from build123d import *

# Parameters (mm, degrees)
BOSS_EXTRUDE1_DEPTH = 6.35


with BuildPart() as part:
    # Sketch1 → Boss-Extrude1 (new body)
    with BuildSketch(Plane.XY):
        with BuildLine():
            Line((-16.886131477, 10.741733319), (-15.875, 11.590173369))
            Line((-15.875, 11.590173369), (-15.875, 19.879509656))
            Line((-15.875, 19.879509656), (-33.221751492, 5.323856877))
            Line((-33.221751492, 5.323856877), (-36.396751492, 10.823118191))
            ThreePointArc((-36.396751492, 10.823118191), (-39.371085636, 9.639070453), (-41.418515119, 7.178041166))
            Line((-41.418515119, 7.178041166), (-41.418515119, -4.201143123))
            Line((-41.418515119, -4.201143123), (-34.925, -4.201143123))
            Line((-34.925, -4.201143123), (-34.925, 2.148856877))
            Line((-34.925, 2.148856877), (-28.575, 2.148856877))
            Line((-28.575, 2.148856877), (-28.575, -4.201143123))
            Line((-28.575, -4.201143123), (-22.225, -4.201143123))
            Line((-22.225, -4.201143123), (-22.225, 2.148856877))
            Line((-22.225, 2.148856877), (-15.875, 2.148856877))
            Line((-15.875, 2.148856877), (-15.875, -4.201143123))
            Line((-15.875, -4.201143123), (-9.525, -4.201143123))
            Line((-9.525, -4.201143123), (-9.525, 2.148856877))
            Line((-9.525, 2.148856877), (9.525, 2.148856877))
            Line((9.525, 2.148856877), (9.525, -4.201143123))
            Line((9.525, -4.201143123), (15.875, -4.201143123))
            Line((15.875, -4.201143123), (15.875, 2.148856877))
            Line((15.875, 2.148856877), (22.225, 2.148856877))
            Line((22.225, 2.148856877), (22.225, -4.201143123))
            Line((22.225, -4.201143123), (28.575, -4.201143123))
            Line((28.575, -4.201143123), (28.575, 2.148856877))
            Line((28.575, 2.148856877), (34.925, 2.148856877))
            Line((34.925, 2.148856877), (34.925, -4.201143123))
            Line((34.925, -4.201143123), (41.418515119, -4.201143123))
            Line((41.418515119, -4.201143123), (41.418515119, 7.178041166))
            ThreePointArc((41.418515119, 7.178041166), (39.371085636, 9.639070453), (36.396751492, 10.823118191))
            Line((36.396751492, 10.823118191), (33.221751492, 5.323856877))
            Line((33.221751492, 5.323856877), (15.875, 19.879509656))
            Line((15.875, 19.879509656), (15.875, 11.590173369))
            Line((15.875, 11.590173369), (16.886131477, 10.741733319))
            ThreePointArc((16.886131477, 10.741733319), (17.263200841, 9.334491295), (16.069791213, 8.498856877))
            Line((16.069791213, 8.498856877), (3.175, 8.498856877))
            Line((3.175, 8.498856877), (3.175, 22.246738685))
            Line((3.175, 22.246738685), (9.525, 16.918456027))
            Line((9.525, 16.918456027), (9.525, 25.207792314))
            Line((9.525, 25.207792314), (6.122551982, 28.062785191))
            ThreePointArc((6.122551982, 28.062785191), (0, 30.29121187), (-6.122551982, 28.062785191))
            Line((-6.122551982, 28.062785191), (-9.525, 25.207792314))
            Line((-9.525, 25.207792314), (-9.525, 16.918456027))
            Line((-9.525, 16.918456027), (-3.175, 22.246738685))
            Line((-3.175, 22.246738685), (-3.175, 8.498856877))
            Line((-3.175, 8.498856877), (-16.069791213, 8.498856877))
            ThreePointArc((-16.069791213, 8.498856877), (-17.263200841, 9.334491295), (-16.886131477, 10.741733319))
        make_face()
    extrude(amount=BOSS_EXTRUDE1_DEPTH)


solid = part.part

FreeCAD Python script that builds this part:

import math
import FreeCAD as App
import Part
import Sketcher
Q = App.Units.Quantity

doc = App.newDocument("Part")
params = doc.addObject("Spreadsheet::Sheet", "Params")
for row, (alias, value) in enumerate([
    ("sketch1_radius", "0.05 in"),
    ("sketch1_radius2", "0.375 in"),
    ("sketch1_width", "0.25 in"),
    ("sketch1_length", "0.25 in"),
    ("pad1_length", "0.25 in"),
], start=1):
    params.set(f"A{row}", alias)
    params.set(f"B{row}", "=" + value)
    params.setAlias(f"B{row}", alias)

body = doc.addObject("PartDesign::Body", "Body")

# Sketch on XY plane
sketch1 = doc.addObject("Sketcher::SketchObject", "Sketch")
body.addObject(sketch1)
sketch1.AttachmentSupport = (doc.XY_Plane, [""])
sketch1.MapMode = "FlatFace"
sketch1.addGeometry(Part.LineSegment(App.Vector(-16.886131, 10.741733, 0), App.Vector(-15.875, 11.590173, 0)), False)
sketch1.addGeometry(Part.LineSegment(App.Vector(-15.875, 11.590173, 0), App.Vector(-15.875, 19.87951, 0)), False)
sketch1.addGeometry(Part.LineSegment(App.Vector(-15.875, 19.87951, 0), App.Vector(-33.221751, 5.323857, 0)), False)
sketch1.addGeometry(Part.LineSegment(App.Vector(-33.221751, 5.323857, 0), App.Vector(-36.396751, 10.823118, 0)), False)
sketch1.addGeometry(Part.ArcOfCircle(Part.Circle(App.Vector(-35.555769, 4.382771, 0), App.Vector(0, 0, 1), 6.495023), math.radians(97.439605), math.radians(154.508884)), False)
sketch1.addGeometry(Part.LineSegment(App.Vector(-41.418515, 7.178041, 0), App.Vector(-41.418515, -4.201143, 0)), False)
sketch1.addGeometry(Part.LineSegment(App.Vector(-41.418515, -4.201143, 0), App.Vector(-34.925, -4.201143, 0)), False)
sketch1.addGeometry(Part.LineSegment(App.Vector(-34.925, -4.201143, 0), App.Vector(-34.925, 2.148857, 0)), False)
sketch1.addGeometry(Part.LineSegment(App.Vector(-34.925, 2.148857, 0), App.Vector(-28.575, 2.148857, 0)), False)
sketch1.addGeometry(Part.LineSegment(App.Vector(-28.575, 2.148857, 0), App.Vector(-28.575, -4.201143, 0)), False)
sketch1.addGeometry(Part.LineSegment(App.Vector(-28.575, -4.201143, 0), App.Vector(-22.225, -4.201143, 0)), False)
sketch1.addGeometry(Part.LineSegment(App.Vector(-22.225, -4.201143, 0), App.Vector(-22.225, 2.148857, 0)), False)
sketch1.addGeometry(Part.LineSegment(App.Vector(-22.225, 2.148857, 0), App.Vector(-15.875, 2.148857, 0)), False)
sketch1.addGeometry(Part.LineSegment(App.Vector(-15.875, 2.148857, 0), App.Vector(-15.875, -4.201143, 0)), False)
sketch1.addGeometry(Part.LineSegment(App.Vector(-15.875, -4.201143, 0), App.Vector(-9.525, -4.201143, 0)), False)
sketch1.addGeometry(Part.LineSegment(App.Vector(-9.525, -4.201143, 0), App.Vector(-9.525, 2.148857, 0)), False)
sketch1.addGeometry(Part.LineSegment(App.Vector(-9.525, 2.148857, 0), App.Vector(9.525, 2.148857, 0)), False)
sketch1.addGeometry(Part.LineSegment(App.Vector(9.525, 2.148857, 0), App.Vector(9.525, -4.201143, 0)), False)
sketch1.addGeometry(Part.LineSegment(App.Vector(9.525, -4.201143, 0), App.Vector(15.875, -4.201143, 0)), False)
sketch1.addGeometry(Part.LineSegment(App.Vector(15.875, -4.201143, 0), App.Vector(15.875, 2.148857, 0)), False)
sketch1.addGeometry(Part.LineSegment(App.Vector(15.875, 2.148857, 0), App.Vector(22.225, 2.148857, 0)), False)
sketch1.addGeometry(Part.LineSegment(App.Vector(22.225, 2.148857, 0), App.Vector(22.225, -4.201143, 0)), False)
sketch1.addGeometry(Part.LineSegment(App.Vector(22.225, -4.201143, 0), App.Vector(28.575, -4.201143, 0)), False)
sketch1.addGeometry(Part.LineSegment(App.Vector(28.575, -4.201143, 0), App.Vector(28.575, 2.148857, 0)), False)
sketch1.addGeometry(Part.LineSegment(App.Vector(28.575, 2.148857, 0), App.Vector(34.925, 2.148857, 0)), False)
sketch1.addGeometry(Part.LineSegment(App.Vector(34.925, 2.148857, 0), App.Vector(34.925, -4.201143, 0)), False)
sketch1.addGeometry(Part.LineSegment(App.Vector(34.925, -4.201143, 0), App.Vector(41.418515, -4.201143, 0)), False)
sketch1.addGeometry(Part.LineSegment(App.Vector(41.418515, -4.201143, 0), App.Vector(41.418515, 7.178041, 0)), False)
sketch1.addGeometry(Part.ArcOfCircle(Part.Circle(App.Vector(35.555769, 4.382771, 0), App.Vector(0, 0, 1), 6.495023), math.radians(25.491116), math.radians(82.560395)), False)
sketch1.addGeometry(Part.LineSegment(App.Vector(36.396751, 10.823118, 0), App.Vector(33.221751, 5.323857, 0)), False)
sketch1.addGeometry(Part.LineSegment(App.Vector(33.221751, 5.323857, 0), App.Vector(15.875, 19.87951, 0)), False)
sketch1.addGeometry(Part.LineSegment(App.Vector(15.875, 19.87951, 0), App.Vector(15.875, 11.590173, 0)), False)
sketch1.addGeometry(Part.LineSegment(App.Vector(15.875, 11.590173, 0), App.Vector(16.886131, 10.741733, 0)), False)
sketch1.addGeometry(Part.ArcOfCircle(Part.Circle(App.Vector(16.069791, 9.768857, 0), App.Vector(0, 0, 1), 1.27), math.radians(-90), math.radians(50)), False)
sketch1.addGeometry(Part.LineSegment(App.Vector(16.069791, 8.498857, 0), App.Vector(3.175, 8.498857, 0)), False)
sketch1.addGeometry(Part.LineSegment(App.Vector(3.175, 8.498857, 0), App.Vector(3.175, 22.246739, 0)), False)
sketch1.addGeometry(Part.LineSegment(App.Vector(3.175, 22.246739, 0), App.Vector(9.525, 16.918456, 0)), False)
sketch1.addGeometry(Part.LineSegment(App.Vector(9.525, 16.918456, 0), App.Vector(9.525, 25.207792, 0)), False)
sketch1.addGeometry(Part.LineSegment(App.Vector(9.525, 25.207792, 0), App.Vector(6.122552, 28.062785, 0)), False)
sketch1.addGeometry(Part.ArcOfCircle(Part.Circle(App.Vector(0, 20.766212, 0), App.Vector(0, 0, 1), 9.525), math.radians(50), math.radians(130)), False)
sketch1.addGeometry(Part.LineSegment(App.Vector(-6.122552, 28.062785, 0), App.Vector(-9.525, 25.207792, 0)), False)
sketch1.addGeometry(Part.LineSegment(App.Vector(-9.525, 25.207792, 0), App.Vector(-9.525, 16.918456, 0)), False)
sketch1.addGeometry(Part.LineSegment(App.Vector(-9.525, 16.918456, 0), App.Vector(-3.175, 22.246739, 0)), False)
sketch1.addGeometry(Part.LineSegment(App.Vector(-3.175, 22.246739, 0), App.Vector(-3.175, 8.498857, 0)), False)
sketch1.addGeometry(Part.LineSegment(App.Vector(-3.175, 8.498857, 0), App.Vector(-16.069791, 8.498857, 0)), False)
sketch1.addGeometry(Part.ArcOfCircle(Part.Circle(App.Vector(-16.069791, 9.768857, 0), App.Vector(0, 0, 1), 1.27), math.radians(130), math.radians(270)), False)
sketch1.addConstraint(Sketcher.Constraint("Coincident", 0, 2, 1, 1))
sketch1.addConstraint(Sketcher.Constraint("Coincident", 1, 2, 2, 1))
sketch1.addConstraint(Sketcher.Constraint("Coincident", 2, 2, 3, 1))
sketch1.addConstraint(Sketcher.Constraint("Coincident", 3, 2, 4, 1))
sketch1.addConstraint(Sketcher.Constraint("Coincident", 4, 2, 5, 1))
sketch1.addConstraint(Sketcher.Constraint("Coincident", 5, 2, 6, 1))
sketch1.addConstraint(Sketcher.Constraint("Coincident", 6, 2, 7, 1))
sketch1.addConstraint(Sketcher.Constraint("Coincident", 7, 2, 8, 1))
sketch1.addConstraint(Sketcher.Constraint("Coincident", 8, 2, 9, 1))
sketch1.addConstraint(Sketcher.Constraint("Coincident", 9, 2, 10, 1))
sketch1.addConstraint(Sketcher.Constraint("Coincident", 10, 2, 11, 1))
sketch1.addConstraint(Sketcher.Constraint("Coincident", 11, 2, 12, 1))
sketch1.addConstraint(Sketcher.Constraint("Coincident", 12, 2, 13, 1))
sketch1.addConstraint(Sketcher.Constraint("Coincident", 13, 2, 14, 1))
sketch1.addConstraint(Sketcher.Constraint("Coincident", 14, 2, 15, 1))
sketch1.addConstraint(Sketcher.Constraint("Coincident", 15, 2, 16, 1))
sketch1.addConstraint(Sketcher.Constraint("Coincident", 16, 2, 17, 1))
sketch1.addConstraint(Sketcher.Constraint("Coincident", 17, 2, 18, 1))
sketch1.addConstraint(Sketcher.Constraint("Coincident", 18, 2, 19, 1))
sketch1.addConstraint(Sketcher.Constraint("Coincident", 19, 2, 20, 1))
sketch1.addConstraint(Sketcher.Constraint("Coincident", 20, 2, 21, 1))
sketch1.addConstraint(Sketcher.Constraint("Coincident", 21, 2, 22, 1))
sketch1.addConstraint(Sketcher.Constraint("Coincident", 22, 2, 23, 1))
sketch1.addConstraint(Sketcher.Constraint("Coincident", 23, 2, 24, 1))
sketch1.addConstraint(Sketcher.Constraint("Coincident", 24, 2, 25, 1))
sketch1.addConstraint(Sketcher.Constraint("Coincident", 25, 2, 26, 1))
sketch1.addConstraint(Sketcher.Constraint("Coincident", 26, 2, 27, 1))
sketch1.addConstraint(Sketcher.Constraint("Coincident", 27, 2, 28, 1))
sketch1.addConstraint(Sketcher.Constraint("Coincident", 28, 2, 29, 1))
sketch1.addConstraint(Sketcher.Constraint("Coincident", 29, 2, 30, 1))
sketch1.addConstraint(Sketcher.Constraint("Coincident", 30, 2, 31, 1))
sketch1.addConstraint(Sketcher.Constraint("Coincident", 31, 2, 32, 1))
sketch1.addConstraint(Sketcher.Constraint("Tangent", 32, 2, 33, 2))
sketch1.addConstraint(Sketcher.Constraint("Tangent", 33, 1, 34, 1))
sketch1.addConstraint(Sketcher.Constraint("Coincident", 34, 2, 35, 1))
sketch1.addConstraint(Sketcher.Constraint("Coincident", 35, 2, 36, 1))
sketch1.addConstraint(Sketcher.Constraint("Coincident", 36, 2, 37, 1))
sketch1.addConstraint(Sketcher.Constraint("Coincident", 37, 2, 38, 1))
sketch1.addConstraint(Sketcher.Constraint("Tangent", 38, 2, 39, 1))
sketch1.addConstraint(Sketcher.Constraint("Tangent", 39, 2, 40, 1))
sketch1.addConstraint(Sketcher.Constraint("Coincident", 40, 2, 41, 1))
sketch1.addConstraint(Sketcher.Constraint("Coincident", 41, 2, 42, 1))
sketch1.addConstraint(Sketcher.Constraint("Coincident", 42, 2, 43, 1))
sketch1.addConstraint(Sketcher.Constraint("Coincident", 43, 2, 44, 1))
sketch1.addConstraint(Sketcher.Constraint("Tangent", 44, 2, 45, 2))
sketch1.addConstraint(Sketcher.Constraint("Tangent", 45, 1, 0, 1))
sketch1.addConstraint(Sketcher.Constraint("Vertical", 1))
sketch1.addConstraint(Sketcher.Constraint("Vertical", 5))
sketch1.addConstraint(Sketcher.Constraint("Horizontal", 6))
sketch1.addConstraint(Sketcher.Constraint("Vertical", 7))
sketch1.addConstraint(Sketcher.Constraint("Horizontal", 8))
sketch1.addConstraint(Sketcher.Constraint("Vertical", 9))
sketch1.addConstraint(Sketcher.Constraint("Horizontal", 10))
sketch1.addConstraint(Sketcher.Constraint("Vertical", 11))
sketch1.addConstraint(Sketcher.Constraint("Horizontal", 12))
sketch1.addConstraint(Sketcher.Constraint("Vertical", 13))
sketch1.addConstraint(Sketcher.Constraint("Horizontal", 14))
sketch1.addConstraint(Sketcher.Constraint("Vertical", 15))
sketch1.addConstraint(Sketcher.Constraint("Horizontal", 16))
sketch1.addConstraint(Sketcher.Constraint("Vertical", 17))
sketch1.addConstraint(Sketcher.Constraint("Horizontal", 18))
sketch1.addConstraint(Sketcher.Constraint("Vertical", 19))
sketch1.addConstraint(Sketcher.Constraint("Horizontal", 20))
sketch1.addConstraint(Sketcher.Constraint("Vertical", 21))
sketch1.addConstraint(Sketcher.Constraint("Horizontal", 22))
sketch1.addConstraint(Sketcher.Constraint("Vertical", 23))
sketch1.addConstraint(Sketcher.Constraint("Horizontal", 24))
sketch1.addConstraint(Sketcher.Constraint("Vertical", 25))
sketch1.addConstraint(Sketcher.Constraint("Horizontal", 26))
sketch1.addConstraint(Sketcher.Constraint("Vertical", 27))
sketch1.addConstraint(Sketcher.Constraint("Vertical", 31))
sketch1.addConstraint(Sketcher.Constraint("Horizontal", 34))
sketch1.addConstraint(Sketcher.Constraint("Vertical", 35))
sketch1.addConstraint(Sketcher.Constraint("Vertical", 37))
sketch1.addConstraint(Sketcher.Constraint("Vertical", 41))
sketch1.addConstraint(Sketcher.Constraint("Vertical", 43))
sketch1.addConstraint(Sketcher.Constraint("Horizontal", 44))
sketch1.addConstraint(Sketcher.Constraint("Equal", 4, 28))
sketch1.addConstraint(Sketcher.Constraint("Equal", 33, 45))
sketch1.addConstraint(Sketcher.Constraint("Symmetric", 4, 3, 28, 3, -2))
sketch1.addConstraint(Sketcher.Constraint("Symmetric", 33, 3, 45, 3, -2))
sketch1.addConstraint(Sketcher.Constraint("Symmetric", 14, 2, 17, 2, -2))
sketch1.addConstraint(Sketcher.Constraint("Symmetric", 12, 2, 19, 2, -2))
sketch1.addConstraint(Sketcher.Constraint("Symmetric", 10, 2, 21, 2, -2))
sketch1.addConstraint(Sketcher.Constraint("Symmetric", 8, 2, 23, 2, -2))
sketch1.addConstraint(Sketcher.Constraint("Symmetric", 6, 2, 25, 2, -2))
sketch1.addConstraint(Sketcher.Constraint("Symmetric", 2, 2, 29, 2, -2))
sketch1.addConstraint(Sketcher.Constraint("Symmetric", 1, 2, 30, 2, -2))
sketch1.addConstraint(Sketcher.Constraint("Symmetric", 38, 2, 39, 2, -2))
sketch1.addConstraint(Sketcher.Constraint("Symmetric", 36, 2, 41, 2, -2))
sketch1.addConstraint(Sketcher.Constraint("Symmetric", 35, 2, 42, 2, -2))
sketch1.addConstraint(Sketcher.Constraint("Parallel", 0, 2))
sketch1.addConstraint(Sketcher.Constraint("Parallel", 30, 32))
sketch1.addConstraint(Sketcher.Constraint("Parallel", 32, 36))
sketch1.addConstraint(Sketcher.Constraint("Parallel", 36, 38))
sketch1.addConstraint(Sketcher.Constraint("Horizontal", 6, 2, 9, 2))
sketch1.addConstraint(Sketcher.Constraint("Horizontal", 8, 2, 11, 2))
sketch1.addConstraint(Sketcher.Constraint("Horizontal", 10, 2, 13, 2))
sketch1.addConstraint(Sketcher.Constraint("Horizontal", 12, 2, 15, 2))
sketch1.addConstraint(Sketcher.Constraint("Horizontal", 4, 2, 27, 2))
sketch1.addConstraint(Sketcher.Constraint("Horizontal", 3, 2, 28, 2))
sketch1.addConstraint(Sketcher.Constraint("Vertical", 1, 2, 12, 2))
sketch1.addConstraint(Sketcher.Constraint("Vertical", 17, 2, 36, 2))
sketch1.addConstraint(Sketcher.Constraint("Equal", 8, 10))
sketch1.addConstraint(Sketcher.Constraint("Equal", 10, 12))
sketch1.addConstraint(Sketcher.Constraint("Equal", 12, 14))
sketch1.addConstraint(Sketcher.Constraint("Equal", 24, 7))
sketch1.addConstraint(Sketcher.Constraint("Equal", 31, 37))
sketch1.addConstraint(Sketcher.Constraint("Radius", 33, Q("0.05 in")))
sketch1.addConstraint(Sketcher.Constraint("Angle", 0, Q("40 deg")))
sketch1.addConstraint(Sketcher.Constraint("Angle", 3, Q("120 deg")))
sketch1.addConstraint(Sketcher.Constraint("Radius", 39, Q("0.375 in")))
sketch1.addConstraint(Sketcher.Constraint("DistanceX", 12, 2, 16, 2, Q("1 in")))
sketch1.addConstraint(Sketcher.Constraint("DistanceX", 8, 1, 8, 2, Q("0.25 in")))
sketch1.addConstraint(Sketcher.Constraint("DistanceY", 11, 2, 45, 3, Q("0.3 in")))
sketch1.addConstraint(Sketcher.Constraint("DistanceX", 34, 2, 31, 2, Q("0.5 in")))
sketch1.addConstraint(Sketcher.Constraint("Distance", 3, Q("0.25 in")))
sketch1.addConstraint(Sketcher.Constraint("DistanceY", 2, 2, 45, 3, Q("0.175 in")))
sketch1.addConstraint(Sketcher.Constraint("DistanceY", -1, 1, 4, 2, Q("0.2826 in")))
sketch1.addConstraint(Sketcher.Constraint("Radius", 4, 6.495023))
sketch1.addConstraint(Sketcher.Constraint("DistanceX", 34, 2, 34, 1, 12.894791))
sketch1.addConstraint(Sketcher.Constraint("DistanceY", 35, 1, 35, 2, 13.747882))
sketch1.addConstraint(Sketcher.Constraint("DistanceX", 6, 1, 6, 2, 6.493515))
sketch1.addConstraint(Sketcher.Constraint("DistanceY", 1, 1, 1, 2, 8.289336))
sketch1.addConstraint(Sketcher.Constraint("DistanceY", 5, 2, 5, 1, 11.379184))
sketch1.setExpression("Constraints[108]", "Params.sketch1_radius")
sketch1.setExpression("Constraints[111]", "Params.sketch1_radius2")
sketch1.setExpression("Constraints[113]", "Params.sketch1_width")
sketch1.setExpression("Constraints[116]", "Params.sketch1_length")
pad1 = doc.addObject("PartDesign::Pad", "Pad")
body.addObject(pad1)
pad1.Profile = sketch1
pad1.setExpression("Length", "Params.pad1_length")

doc.recompute()
